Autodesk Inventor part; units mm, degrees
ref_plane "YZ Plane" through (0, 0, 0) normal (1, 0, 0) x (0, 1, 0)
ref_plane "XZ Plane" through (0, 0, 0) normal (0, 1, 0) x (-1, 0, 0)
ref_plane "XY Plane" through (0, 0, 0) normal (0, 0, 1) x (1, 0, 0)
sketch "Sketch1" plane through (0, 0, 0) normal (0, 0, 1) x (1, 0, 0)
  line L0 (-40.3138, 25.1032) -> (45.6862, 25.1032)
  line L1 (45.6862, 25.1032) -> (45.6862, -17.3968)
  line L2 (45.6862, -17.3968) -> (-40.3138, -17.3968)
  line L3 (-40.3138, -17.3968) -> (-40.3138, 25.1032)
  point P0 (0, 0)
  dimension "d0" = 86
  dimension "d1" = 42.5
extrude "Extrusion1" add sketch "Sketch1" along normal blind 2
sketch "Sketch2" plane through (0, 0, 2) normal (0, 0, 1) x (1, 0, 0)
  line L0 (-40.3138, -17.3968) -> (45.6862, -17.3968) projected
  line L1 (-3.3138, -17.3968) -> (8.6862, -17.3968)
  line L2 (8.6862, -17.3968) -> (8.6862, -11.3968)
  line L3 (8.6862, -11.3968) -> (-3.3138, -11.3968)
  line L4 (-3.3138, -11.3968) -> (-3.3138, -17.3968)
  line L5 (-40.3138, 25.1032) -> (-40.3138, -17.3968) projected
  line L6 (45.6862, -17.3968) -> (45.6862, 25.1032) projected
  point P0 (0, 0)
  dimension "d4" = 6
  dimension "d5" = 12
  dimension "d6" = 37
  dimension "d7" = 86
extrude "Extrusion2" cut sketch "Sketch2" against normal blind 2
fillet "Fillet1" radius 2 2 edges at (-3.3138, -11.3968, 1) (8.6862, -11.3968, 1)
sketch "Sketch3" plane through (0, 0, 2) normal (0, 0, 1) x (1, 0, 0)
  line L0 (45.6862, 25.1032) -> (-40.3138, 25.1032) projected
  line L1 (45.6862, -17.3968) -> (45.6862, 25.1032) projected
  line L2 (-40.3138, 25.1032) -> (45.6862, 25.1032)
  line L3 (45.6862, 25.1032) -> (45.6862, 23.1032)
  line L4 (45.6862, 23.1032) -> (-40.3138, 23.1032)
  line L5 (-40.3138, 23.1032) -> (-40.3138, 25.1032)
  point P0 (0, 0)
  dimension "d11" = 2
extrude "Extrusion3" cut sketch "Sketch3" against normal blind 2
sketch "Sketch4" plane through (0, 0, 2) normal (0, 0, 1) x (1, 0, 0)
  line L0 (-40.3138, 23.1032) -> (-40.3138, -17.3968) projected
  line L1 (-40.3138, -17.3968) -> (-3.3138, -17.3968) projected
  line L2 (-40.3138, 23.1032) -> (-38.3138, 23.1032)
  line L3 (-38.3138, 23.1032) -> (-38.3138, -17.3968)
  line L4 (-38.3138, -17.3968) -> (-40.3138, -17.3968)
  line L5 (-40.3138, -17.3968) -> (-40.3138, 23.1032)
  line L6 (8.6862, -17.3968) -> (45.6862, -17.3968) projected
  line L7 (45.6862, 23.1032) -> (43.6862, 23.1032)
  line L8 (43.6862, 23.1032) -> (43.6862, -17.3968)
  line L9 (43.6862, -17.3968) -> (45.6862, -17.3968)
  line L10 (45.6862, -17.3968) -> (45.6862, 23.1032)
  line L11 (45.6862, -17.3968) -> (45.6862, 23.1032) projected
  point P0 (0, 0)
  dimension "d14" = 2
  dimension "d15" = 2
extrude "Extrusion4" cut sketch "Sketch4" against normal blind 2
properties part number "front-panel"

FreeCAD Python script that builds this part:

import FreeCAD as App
import Part
import Sketcher

V = App.Vector


def edges_at(feature, points):
    """Names of the edges that pass closest to the given points."""
    edges = feature.Shape.Edges
    near = lambda p: min(range(len(edges)), key=lambda i: edges[i].distToShape(Part.Vertex(*p))[0])
    return sorted({f"Edge{near(p) + 1}" for p in points})

doc = App.newDocument("Part")
body = doc.addObject("PartDesign::Body", "Body")

sketch1 = body.newObject("Sketcher::SketchObject", "Sketch")
sketch1.AttachmentSupport = (doc.getObject("XY_Plane"), [""])
sketch1.MapMode = "FlatFace"
sketch1.addGeometry([
    Part.LineSegment(V(46, 25, 0), V(-40, 25, 0)),
    Part.LineSegment(V(-40, 25, 0), V(-40, -17, 0)),
    Part.LineSegment(V(-40, -17, 0), V(46, -17, 0)),
    Part.LineSegment(V(46, -17, 0), V(46, 25, 0)),
], False)
sketch1.addConstraint([
    Sketcher.Constraint("Coincident", 0, 2, 1, 1),
    Sketcher.Constraint("Coincident", 1, 2, 2, 1),
    Sketcher.Constraint("Coincident", 2, 2, 3, 1),
    Sketcher.Constraint("Coincident", 3, 2, 0, 1),
    Sketcher.Constraint("Horizontal", 0),
    Sketcher.Constraint("Vertical", 1),
    Sketcher.Constraint("Horizontal", 2),
    Sketcher.Constraint("Vertical", 3),
    Sketcher.Constraint("DistanceX", 0, 2, 0, 1, 86.0),
    Sketcher.Constraint("DistanceY", 1, 2, 1, 1, 42.5),
    Sketcher.Constraint("DistanceX", 0, 2, -1, 1, 40.3138),
    Sketcher.Constraint("DistanceY", -1, 1, 0, 2, 25.1032),
])
pad1 = body.newObject("PartDesign::Pad", "Pad")
pad1.Profile = sketch1
pad1.Length = 2

sketch2 = body.newObject("Sketcher::SketchObject", "Sketch001")
sketch2.AttachmentSupport = (doc.getObject("XY_Plane"), [""])
sketch2.MapMode = "FlatFace"
sketch2.AttachmentOffset = App.Placement(V(0, 0, 2), App.Rotation())
sketch2.addGeometry([
    Part.LineSegment(V(-3, -11, 0), V(-3, -17, 0)),
    Part.LineSegment(V(-3, -17, 0), V(9, -17, 0)),
    Part.LineSegment(V(9, -17, 0), V(9, -11, 0)),
    Part.LineSegment(V(9, -11, 0), V(-3, -11, 0)),
], False)
sketch2.addConstraint([
    Sketcher.Constraint("Coincident", 0, 2, 1, 1),
    Sketcher.Constraint("Coincident", 1, 2, 2, 1),
    Sketcher.Constraint("Coincident", 2, 2, 3, 1),
    Sketcher.Constraint("Coincident", 3, 2, 0, 1),
    Sketcher.Constraint("Vertical", 0),
    Sketcher.Constraint("Horizontal", 1),
    Sketcher.Constraint("Vertical", 2),
    Sketcher.Constraint("Horizontal", 3),
    Sketcher.Constraint("DistanceX", 1, 1, 1, 2, 12.0),
    Sketcher.Constraint("DistanceY", 0, 2, 0, 1, 6.0),
    Sketcher.Constraint("DistanceX", 0, 2, -1, 1, 3.3138),
    Sketcher.Constraint("DistanceY", 0, 2, -1, 1, 17.3968),
])
pocket1 = body.newObject("PartDesign::Pocket", "Pocket")
pocket1.Profile = sketch2
pocket1.Length = 2
doc.recompute()

fillet = body.newObject("PartDesign::Fillet", "Fillet")
fillet.Base = (pocket1, edges_at(pocket1, [(-3.314, -11.397, 1), (8.686, -11.397, 1)]))
fillet.Radius = 2

sketch3 = body.newObject("Sketcher::SketchObject", "Sketch002")
sketch3.AttachmentSupport = (doc.getObject("XY_Plane"), [""])
sketch3.MapMode = "FlatFace"
sketch3.AttachmentOffset = App.Placement(V(0, 0, 2), App.Rotation())
sketch3.addGeometry([
    Part.LineSegment(V(45.7, 23.1, 0), V(45.7, 25.1, 0)),
    Part.LineSegment(V(45.7, 25.1, 0), V(-40.3, 25.1, 0)),
    Part.LineSegment(V(-40.3, 25.1, 0), V(-40.3, 23.1, 0)),
    Part.LineSegment(V(-40.3, 23.1, 0), V(45.7, 23.1, 0)),
], False)
sketch3.addConstraint([
    Sketcher.Constraint("Coincident", 0, 2, 1, 1),
    Sketcher.Constraint("Coincident", 1, 2, 2, 1),
    Sketcher.Constraint("Coincident", 2, 2, 3, 1),
    Sketcher.Constraint("Coincident", 3, 2, 0, 1),
    Sketcher.Constraint("Vertical", 0),
    Sketcher.Constraint("Horizontal", 1),
    Sketcher.Constraint("Vertical", 2),
    Sketcher.Constraint("Horizontal", 3),
    Sketcher.Constraint("DistanceY", 0, 1, 0, 2, 2.0),
    Sketcher.Constraint("DistanceX", 1, 2, 1, 1, 86.0),
    Sketcher.Constraint("DistanceX", -1, 1, 0, 2, 45.6862),
    Sketcher.Constraint("DistanceY", -1, 1, 0, 2, 25.1032),
])
pocket2 = body.newObject("PartDesign::Pocket", "Pocket001")
pocket2.Profile = sketch3
pocket2.Length = 2

sketch4 = body.newObject("Sketcher::SketchObject", "Sketch003")
sketch4.AttachmentSupport = (doc.getObject("XY_Plane"), [""])
sketch4.MapMode = "FlatFace"
sketch4.AttachmentOffset = App.Placement(V(0, 0, 2), App.Rotation())
sketch4.addGeometry([
    Part.LineSegment(V(-38.3, 23.1, 0), V(-40.3, 23.1, 0)),
    Part.LineSegment(V(-40.3, 23.1, 0), V(-40.3, -17.4, 0)),
    Part.LineSegment(V(-40.3, -17.4, 0), V(-38.3, -17.4, 0)),
    Part.LineSegment(V(-38.3, -17.4, 0), V(-38.3, 23.1, 0)),
    Part.LineSegment(V(43.7, 23.1, 0), V(43.7, -17.4, 0)),
    Part.LineSegment(V(43.7, -17.4, 0), V(45.7, -17.4, 0)),
    Part.LineSegment(V(45.7, -17.4, 0), V(45.7, 23.1, 0)),
    Part.LineSegment(V(45.7, 23.1, 0), V(43.7, 23.1, 0)),
], False)
sketch4.addConstraint([
    Sketcher.Constraint("Coincident", 0, 2, 1, 1),
    Sketcher.Constraint("Coincident", 1, 2, 2, 1),
    Sketcher.Constraint("Coincident", 2, 2, 3, 1),
    Sketcher.Constraint("Coincident", 3, 2, 0, 1),
    Sketcher.Constraint("Coincident", 4, 2, 5, 1),
    Sketcher.Constraint("Coincident", 5, 2, 6, 1),
    Sketcher.Constraint("Coincident", 6, 2, 7, 1),
    Sketcher.Constraint("Coincident", 7, 2, 4, 1),
    Sketcher.Constraint("Horizontal", 0),
    Sketcher.Constraint("Vertical", 1),
    Sketcher.Constraint("Horizontal", 2),
    Sketcher.Constraint("Vertical", 3),
    Sketcher.Constraint("Vertical", 4),
    Sketcher.Constraint("Horizontal", 5),
    Sketcher.Constraint("Vertical", 6),
    Sketcher.Constraint("Horizontal", 7),
    Sketcher.Constraint("Horizontal", 2, 2, 4, 2),
    Sketcher.Constraint("Horizontal", 3, 2, 6, 2),
    Sketcher.Constraint("Equal", 2, 5),
    Sketcher.Constraint("DistanceX", 0, 2, 0, 1, 2.0),
    Sketcher.Constraint("DistanceY", 1, 2, 1, 1, 40.5),
    Sketcher.Constraint("DistanceX", 2, 2, 4, 2, 82.0),
    Sketcher.Constraint("DistanceX", 0, 2, -1, 1, 40.3138),
    Sketcher.Constraint("DistanceY", -1, 1, 0, 2, 23.1032),
])
pocket3 = body.newObject("PartDesign::Pocket", "Pocket002")
pocket3.Profile = sketch4
pocket3.Length = 2

doc.recompute()
